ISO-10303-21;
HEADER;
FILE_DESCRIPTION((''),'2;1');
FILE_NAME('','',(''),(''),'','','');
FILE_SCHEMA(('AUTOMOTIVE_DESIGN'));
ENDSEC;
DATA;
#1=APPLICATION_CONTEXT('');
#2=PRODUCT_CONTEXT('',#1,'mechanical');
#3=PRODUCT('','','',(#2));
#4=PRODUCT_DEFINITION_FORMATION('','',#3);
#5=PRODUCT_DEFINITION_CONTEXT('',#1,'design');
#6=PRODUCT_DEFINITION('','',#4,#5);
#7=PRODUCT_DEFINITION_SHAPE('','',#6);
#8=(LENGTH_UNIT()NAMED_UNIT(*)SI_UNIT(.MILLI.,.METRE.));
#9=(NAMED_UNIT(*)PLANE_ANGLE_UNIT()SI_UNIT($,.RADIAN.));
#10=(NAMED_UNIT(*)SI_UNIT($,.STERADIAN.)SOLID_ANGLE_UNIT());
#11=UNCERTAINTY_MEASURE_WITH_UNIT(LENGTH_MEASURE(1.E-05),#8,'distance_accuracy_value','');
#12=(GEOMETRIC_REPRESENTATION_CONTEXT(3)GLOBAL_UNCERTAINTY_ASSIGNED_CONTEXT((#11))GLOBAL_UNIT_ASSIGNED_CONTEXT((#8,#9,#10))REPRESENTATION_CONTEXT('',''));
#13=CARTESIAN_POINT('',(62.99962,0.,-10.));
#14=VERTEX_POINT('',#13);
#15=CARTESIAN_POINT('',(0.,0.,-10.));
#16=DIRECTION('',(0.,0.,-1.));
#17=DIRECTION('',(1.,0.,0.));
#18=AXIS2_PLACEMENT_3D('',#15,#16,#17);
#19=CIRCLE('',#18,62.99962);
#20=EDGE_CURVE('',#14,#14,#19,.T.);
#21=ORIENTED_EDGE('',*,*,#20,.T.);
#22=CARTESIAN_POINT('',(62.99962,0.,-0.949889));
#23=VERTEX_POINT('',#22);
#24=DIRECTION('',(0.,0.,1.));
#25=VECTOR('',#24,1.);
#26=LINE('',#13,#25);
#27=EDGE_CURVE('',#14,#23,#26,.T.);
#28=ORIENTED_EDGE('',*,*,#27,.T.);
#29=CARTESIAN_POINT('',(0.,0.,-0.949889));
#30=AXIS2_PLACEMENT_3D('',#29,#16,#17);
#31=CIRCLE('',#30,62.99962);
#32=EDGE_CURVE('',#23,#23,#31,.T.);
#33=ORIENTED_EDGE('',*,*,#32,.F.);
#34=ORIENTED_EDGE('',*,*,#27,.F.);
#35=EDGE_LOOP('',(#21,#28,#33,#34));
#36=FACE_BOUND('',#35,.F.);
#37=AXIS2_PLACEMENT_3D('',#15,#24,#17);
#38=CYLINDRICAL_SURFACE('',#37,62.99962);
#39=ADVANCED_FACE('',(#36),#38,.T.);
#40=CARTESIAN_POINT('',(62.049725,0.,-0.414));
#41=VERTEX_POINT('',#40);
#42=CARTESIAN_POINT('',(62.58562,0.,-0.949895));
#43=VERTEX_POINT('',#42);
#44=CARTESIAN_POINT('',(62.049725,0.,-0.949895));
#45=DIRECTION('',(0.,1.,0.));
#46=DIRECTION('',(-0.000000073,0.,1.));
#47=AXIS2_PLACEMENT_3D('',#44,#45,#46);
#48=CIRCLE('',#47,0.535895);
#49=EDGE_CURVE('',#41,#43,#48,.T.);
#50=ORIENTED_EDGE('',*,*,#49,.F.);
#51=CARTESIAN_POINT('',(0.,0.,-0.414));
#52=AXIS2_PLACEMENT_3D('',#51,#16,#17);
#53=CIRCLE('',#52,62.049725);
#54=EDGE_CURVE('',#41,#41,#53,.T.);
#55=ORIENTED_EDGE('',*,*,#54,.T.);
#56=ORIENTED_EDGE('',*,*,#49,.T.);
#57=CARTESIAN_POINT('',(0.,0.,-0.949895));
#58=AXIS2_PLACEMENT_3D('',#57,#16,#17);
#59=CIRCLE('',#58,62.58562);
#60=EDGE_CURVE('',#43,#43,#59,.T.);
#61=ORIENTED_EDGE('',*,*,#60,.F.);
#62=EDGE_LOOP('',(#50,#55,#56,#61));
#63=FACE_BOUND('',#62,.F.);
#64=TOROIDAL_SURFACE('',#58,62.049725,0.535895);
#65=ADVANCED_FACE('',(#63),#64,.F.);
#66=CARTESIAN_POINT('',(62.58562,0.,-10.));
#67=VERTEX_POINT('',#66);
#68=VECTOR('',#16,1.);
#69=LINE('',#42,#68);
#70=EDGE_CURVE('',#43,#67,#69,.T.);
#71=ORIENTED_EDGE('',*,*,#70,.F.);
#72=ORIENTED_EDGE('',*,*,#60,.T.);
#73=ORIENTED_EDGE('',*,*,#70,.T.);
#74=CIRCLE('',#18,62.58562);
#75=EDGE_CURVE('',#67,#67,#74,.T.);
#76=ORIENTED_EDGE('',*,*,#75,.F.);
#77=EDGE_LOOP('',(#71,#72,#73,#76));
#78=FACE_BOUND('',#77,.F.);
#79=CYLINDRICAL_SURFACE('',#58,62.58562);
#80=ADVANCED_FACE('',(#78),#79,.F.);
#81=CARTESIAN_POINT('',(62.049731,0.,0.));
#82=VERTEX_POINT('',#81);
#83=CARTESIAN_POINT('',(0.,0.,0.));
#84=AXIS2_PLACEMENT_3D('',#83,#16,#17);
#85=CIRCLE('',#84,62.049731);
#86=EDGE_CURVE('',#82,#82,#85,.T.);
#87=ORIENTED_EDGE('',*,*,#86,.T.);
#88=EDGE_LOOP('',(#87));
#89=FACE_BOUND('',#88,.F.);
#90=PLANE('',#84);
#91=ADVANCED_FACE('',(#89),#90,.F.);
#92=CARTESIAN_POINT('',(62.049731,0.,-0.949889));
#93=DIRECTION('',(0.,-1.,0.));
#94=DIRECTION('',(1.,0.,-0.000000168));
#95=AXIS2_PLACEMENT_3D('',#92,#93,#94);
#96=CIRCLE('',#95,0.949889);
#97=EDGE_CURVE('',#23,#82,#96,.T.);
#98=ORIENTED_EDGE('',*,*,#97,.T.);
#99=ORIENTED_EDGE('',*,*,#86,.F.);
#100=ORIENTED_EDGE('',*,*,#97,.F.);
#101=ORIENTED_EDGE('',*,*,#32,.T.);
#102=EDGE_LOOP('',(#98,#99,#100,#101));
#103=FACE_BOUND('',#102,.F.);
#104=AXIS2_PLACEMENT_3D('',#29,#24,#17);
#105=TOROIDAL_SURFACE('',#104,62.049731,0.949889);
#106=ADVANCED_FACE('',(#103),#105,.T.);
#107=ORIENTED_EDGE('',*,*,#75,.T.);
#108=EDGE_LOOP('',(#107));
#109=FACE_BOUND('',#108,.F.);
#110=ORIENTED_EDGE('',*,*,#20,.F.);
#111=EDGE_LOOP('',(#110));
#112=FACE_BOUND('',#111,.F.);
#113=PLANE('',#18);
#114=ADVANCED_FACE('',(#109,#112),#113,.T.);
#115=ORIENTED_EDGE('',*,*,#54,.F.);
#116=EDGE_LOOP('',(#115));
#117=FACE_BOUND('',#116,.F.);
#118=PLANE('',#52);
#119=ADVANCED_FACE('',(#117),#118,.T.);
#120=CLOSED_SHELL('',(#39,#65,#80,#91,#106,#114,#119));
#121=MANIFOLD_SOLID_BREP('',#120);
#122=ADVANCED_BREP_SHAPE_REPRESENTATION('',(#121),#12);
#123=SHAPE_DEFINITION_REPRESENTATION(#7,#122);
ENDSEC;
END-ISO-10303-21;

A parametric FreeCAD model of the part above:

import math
import FreeCAD as App
import Part
import Sketcher

doc = App.newDocument("Part")
body = doc.addObject("PartDesign::Body", "Body")

# Sketch on XZ plane
sketch1 = body.newObject("Sketcher::SketchObject", "Sketch")
sketch1.AttachmentSupport = (doc.getObject("XZ_Plane"), [""])
sketch1.MapMode = "FlatFace"
sketch1.addGeometry([
    Part.LineSegment(App.Vector(62.049731, 0, 0), App.Vector(0, 0, 0)),  # 0
    Part.LineSegment(App.Vector(0, 0, 0), App.Vector(0, -0.414, 0)),  # 1
    Part.LineSegment(App.Vector(0, -0.414, 0), App.Vector(62.049725, -0.414, 0)),  # 2
    Part.ArcOfCircle(Part.Circle(App.Vector(62.049725, -0.949895, 0), App.Vector(0, 0, 1), 0.535895), math.radians(-0.000004), math.radians(90.000004)),  # 3
    Part.LineSegment(App.Vector(62.58562, -0.949895, 0), App.Vector(62.58562, -10, 0)),  # 4
    Part.LineSegment(App.Vector(62.58562, -10, 0), App.Vector(62.99962, -10, 0)),  # 5
    Part.LineSegment(App.Vector(62.99962, -10, 0), App.Vector(62.99962, -0.949889, 0)),  # 6
    Part.ArcOfCircle(Part.Circle(App.Vector(62.049731, -0.949889, 0), App.Vector(0, 0, 1), 0.949889), math.radians(-0.00001), math.radians(90.00001)),  # 7
], False)
sketch1.addConstraint([
    Sketcher.Constraint("Coincident", 0, 2, 1, 1),
    Sketcher.Constraint("Coincident", 1, 2, 2, 1),
    Sketcher.Constraint("Tangent", 2, 2, 3, 2),
    Sketcher.Constraint("Tangent", 3, 1, 4, 1),
    Sketcher.Constraint("Coincident", 4, 2, 5, 1),
    Sketcher.Constraint("Coincident", 5, 2, 6, 1),
    Sketcher.Constraint("Tangent", 6, 2, 7, 1),
    Sketcher.Constraint("Tangent", 7, 2, 0, 1),
    Sketcher.Constraint("Horizontal", 0),
    Sketcher.Constraint("Vertical", 1),
    Sketcher.Constraint("Horizontal", 2),
    Sketcher.Constraint("Vertical", 4),
    Sketcher.Constraint("Horizontal", 5),
    Sketcher.Constraint("Vertical", 6),
    Sketcher.Constraint("Coincident", 0, 2, -1, 1),
    Sketcher.Constraint("Coincident", 7, 3, 3, 3),
    Sketcher.Constraint("DistanceY", 4, 2, -1, 1, 10.0),
    Sketcher.Constraint("DistanceX", 5, 1, 5, 2, 0.414),
    Sketcher.Constraint("Radius", 7, 0.949889),
    Sketcher.Constraint("DistanceX", 0, 2, 0, 1, 62.049731),
])
revolution = body.newObject("PartDesign::Revolution", "Revolution")
revolution.Profile = sketch1
revolution.ReferenceAxis = (sketch1, ["V_Axis"])
revolution.Angle = 360

doc.recompute()
